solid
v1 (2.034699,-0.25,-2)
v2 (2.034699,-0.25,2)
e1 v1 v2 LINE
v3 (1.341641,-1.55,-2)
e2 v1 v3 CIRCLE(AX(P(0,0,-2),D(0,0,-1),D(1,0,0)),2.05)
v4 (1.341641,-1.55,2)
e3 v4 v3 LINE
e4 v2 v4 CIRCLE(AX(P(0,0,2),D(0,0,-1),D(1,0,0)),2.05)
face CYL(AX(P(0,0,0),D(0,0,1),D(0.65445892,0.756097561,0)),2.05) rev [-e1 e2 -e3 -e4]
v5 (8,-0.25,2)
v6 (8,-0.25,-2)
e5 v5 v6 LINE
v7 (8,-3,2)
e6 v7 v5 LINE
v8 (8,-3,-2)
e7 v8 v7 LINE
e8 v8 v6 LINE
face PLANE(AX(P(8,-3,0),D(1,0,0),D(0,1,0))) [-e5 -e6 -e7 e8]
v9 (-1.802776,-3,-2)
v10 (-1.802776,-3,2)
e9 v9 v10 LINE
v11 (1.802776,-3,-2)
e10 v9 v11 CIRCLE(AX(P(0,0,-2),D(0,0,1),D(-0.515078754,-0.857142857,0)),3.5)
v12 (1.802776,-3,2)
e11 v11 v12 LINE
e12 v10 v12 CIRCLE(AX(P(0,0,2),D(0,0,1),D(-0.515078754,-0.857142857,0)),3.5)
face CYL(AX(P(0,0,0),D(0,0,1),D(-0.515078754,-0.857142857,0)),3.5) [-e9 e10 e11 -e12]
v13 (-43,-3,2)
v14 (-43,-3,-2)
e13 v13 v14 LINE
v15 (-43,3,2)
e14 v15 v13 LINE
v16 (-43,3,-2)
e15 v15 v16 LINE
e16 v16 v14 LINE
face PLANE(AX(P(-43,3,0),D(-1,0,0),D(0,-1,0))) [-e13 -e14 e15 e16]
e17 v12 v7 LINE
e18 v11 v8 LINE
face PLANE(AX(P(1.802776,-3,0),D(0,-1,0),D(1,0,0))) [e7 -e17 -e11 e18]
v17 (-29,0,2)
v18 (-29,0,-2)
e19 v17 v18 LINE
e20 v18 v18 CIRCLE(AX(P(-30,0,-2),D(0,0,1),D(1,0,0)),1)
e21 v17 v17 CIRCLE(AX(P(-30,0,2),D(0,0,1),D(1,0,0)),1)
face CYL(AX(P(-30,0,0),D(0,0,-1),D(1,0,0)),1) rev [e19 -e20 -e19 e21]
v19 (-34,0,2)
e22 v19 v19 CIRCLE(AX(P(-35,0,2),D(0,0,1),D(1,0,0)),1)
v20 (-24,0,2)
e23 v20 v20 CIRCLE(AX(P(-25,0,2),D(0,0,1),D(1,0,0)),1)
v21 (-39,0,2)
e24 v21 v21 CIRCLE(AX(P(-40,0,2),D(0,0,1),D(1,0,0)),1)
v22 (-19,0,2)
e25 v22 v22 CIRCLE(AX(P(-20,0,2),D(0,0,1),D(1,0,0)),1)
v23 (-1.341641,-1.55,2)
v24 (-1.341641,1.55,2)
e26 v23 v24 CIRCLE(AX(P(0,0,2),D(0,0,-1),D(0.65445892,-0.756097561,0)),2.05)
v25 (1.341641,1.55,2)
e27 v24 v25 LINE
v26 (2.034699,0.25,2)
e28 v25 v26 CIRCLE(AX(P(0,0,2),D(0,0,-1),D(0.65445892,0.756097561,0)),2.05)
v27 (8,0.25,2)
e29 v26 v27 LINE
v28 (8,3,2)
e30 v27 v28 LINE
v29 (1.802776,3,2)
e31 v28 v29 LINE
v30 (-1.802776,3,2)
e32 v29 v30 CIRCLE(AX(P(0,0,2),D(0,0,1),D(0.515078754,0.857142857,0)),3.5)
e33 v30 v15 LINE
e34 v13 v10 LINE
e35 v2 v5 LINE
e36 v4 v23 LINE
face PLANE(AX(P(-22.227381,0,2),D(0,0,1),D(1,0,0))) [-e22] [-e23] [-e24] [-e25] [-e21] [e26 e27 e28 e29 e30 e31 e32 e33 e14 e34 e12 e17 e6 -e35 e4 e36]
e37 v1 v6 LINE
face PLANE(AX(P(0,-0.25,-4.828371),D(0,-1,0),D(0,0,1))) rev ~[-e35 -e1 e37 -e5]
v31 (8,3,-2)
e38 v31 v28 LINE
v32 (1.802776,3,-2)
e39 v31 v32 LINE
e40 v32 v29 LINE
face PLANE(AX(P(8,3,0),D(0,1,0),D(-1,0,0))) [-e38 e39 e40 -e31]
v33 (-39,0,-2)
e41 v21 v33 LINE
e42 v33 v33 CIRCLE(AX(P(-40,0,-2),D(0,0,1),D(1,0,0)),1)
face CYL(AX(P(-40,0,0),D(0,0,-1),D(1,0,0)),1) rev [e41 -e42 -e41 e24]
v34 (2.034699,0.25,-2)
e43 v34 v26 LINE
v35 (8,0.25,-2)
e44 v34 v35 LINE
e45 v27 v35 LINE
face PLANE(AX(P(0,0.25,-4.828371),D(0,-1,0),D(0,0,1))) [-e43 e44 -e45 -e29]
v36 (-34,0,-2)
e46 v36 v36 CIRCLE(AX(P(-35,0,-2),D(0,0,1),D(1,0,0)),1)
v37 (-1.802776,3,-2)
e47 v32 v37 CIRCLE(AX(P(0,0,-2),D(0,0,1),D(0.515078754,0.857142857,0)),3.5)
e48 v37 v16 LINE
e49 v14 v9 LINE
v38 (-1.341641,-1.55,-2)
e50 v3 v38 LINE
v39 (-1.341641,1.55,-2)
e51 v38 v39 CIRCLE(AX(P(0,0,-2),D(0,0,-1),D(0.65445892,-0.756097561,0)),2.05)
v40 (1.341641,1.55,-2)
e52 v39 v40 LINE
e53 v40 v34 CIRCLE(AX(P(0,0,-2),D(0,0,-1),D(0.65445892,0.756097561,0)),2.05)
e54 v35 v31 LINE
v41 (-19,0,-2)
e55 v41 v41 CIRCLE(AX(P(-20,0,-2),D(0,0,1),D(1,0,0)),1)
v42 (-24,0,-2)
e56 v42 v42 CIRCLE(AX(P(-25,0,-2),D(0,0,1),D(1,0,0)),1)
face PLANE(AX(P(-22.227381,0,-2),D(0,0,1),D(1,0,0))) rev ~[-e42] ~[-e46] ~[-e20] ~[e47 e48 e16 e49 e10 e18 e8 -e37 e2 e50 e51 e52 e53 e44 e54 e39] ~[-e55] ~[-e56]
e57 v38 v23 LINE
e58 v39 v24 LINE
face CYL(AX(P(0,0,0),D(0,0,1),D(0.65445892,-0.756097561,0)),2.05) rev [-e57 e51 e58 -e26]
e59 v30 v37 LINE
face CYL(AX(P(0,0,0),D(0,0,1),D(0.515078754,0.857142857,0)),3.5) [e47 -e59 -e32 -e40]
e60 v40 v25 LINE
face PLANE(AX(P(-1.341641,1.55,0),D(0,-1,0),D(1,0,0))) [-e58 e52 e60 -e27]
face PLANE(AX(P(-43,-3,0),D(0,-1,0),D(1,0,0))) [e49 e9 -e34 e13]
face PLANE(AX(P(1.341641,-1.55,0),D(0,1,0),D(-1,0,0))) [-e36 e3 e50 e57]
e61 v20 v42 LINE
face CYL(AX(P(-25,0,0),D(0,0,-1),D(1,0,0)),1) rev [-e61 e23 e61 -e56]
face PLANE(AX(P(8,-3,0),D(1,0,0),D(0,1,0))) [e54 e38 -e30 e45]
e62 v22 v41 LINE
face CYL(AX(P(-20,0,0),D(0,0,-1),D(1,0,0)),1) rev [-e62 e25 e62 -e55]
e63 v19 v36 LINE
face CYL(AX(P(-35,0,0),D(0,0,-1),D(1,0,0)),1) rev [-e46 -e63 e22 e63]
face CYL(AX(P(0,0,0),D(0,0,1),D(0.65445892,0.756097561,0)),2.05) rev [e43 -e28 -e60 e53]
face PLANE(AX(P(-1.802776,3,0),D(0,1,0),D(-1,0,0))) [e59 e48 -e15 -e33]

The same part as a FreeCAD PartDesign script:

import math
import FreeCAD as App
import Part
import Sketcher


def add_polygon(sketch, points):
    """Adds a closed chain of lines whose ends are joined by coincident constraints."""
    first, n = sketch.GeometryCount, len(points)
    for a, b in zip(points, points[1:] + points[:1]):
        sketch.addGeometry(Part.LineSegment(App.Vector(*a, 0), App.Vector(*b, 0)), False)
    for i in range(n):
        sketch.addConstraint(Sketcher.Constraint("Coincident", first + i, 2, first + (i + 1) % n, 1))

doc = App.newDocument("Part")
body = doc.addObject("PartDesign::Body", "Body")

sketch1 = body.newObject("Sketcher::SketchObject", "Sketch")
sketch1.AttachmentSupport = (doc.getObject("XY_Plane"), [""])
sketch1.MapMode = "FlatFace"
sketch1.addGeometry([
    Part.LineSegment(App.Vector(-43, -3, 0), App.Vector(-1.8, -3, 0)),
    Part.ArcOfCircle(Part.Circle(App.Vector(0, 0, 0), App.Vector(0, 0, 1), 3.5), math.radians(-121), math.radians(-59)),
    Part.LineSegment(App.Vector(1.8, -3, 0), App.Vector(8, -3, 0)),
    Part.LineSegment(App.Vector(8, -3, 0), App.Vector(8, 3, 0)),
    Part.LineSegment(App.Vector(8, 3, 0), App.Vector(1.8, 3, 0)),
    Part.ArcOfCircle(Part.Circle(App.Vector(0, 0, 0), App.Vector(0, 0, 1), 3.5), math.radians(59), math.radians(121)),
    Part.LineSegment(App.Vector(-1.8, 3, 0), App.Vector(-43, 3, 0)),
    Part.LineSegment(App.Vector(-43, 3, 0), App.Vector(-43, -3, 0)),
    Part.LineSegment(App.Vector(1.3, -1.6, 0), App.Vector(-1.3, -1.6, 0)),
    Part.ArcOfCircle(Part.Circle(App.Vector(0, 0, 0), App.Vector(0, 0, 1), 2), math.radians(131), math.radians(229)),
    Part.LineSegment(App.Vector(-1.3, 1.6, 0), App.Vector(1.3, 1.6, 0)),
    Part.ArcOfCircle(Part.Circle(App.Vector(0, 0, 0), App.Vector(0, 0, 1), 2), math.radians(0), math.radians(49)),
    Part.ArcOfCircle(Part.Circle(App.Vector(0, 0, 0), App.Vector(0, 0, 1), 2), math.radians(-49), math.radians(0)),
    Part.Circle(App.Vector(-40, 0, 0), App.Vector(0, 0, 1), 1),
    Part.Circle(App.Vector(-35, 0, 0), App.Vector(0, 0, 1), 1),
    Part.Circle(App.Vector(-30, 0, 0), App.Vector(0, 0, 1), 1),
    Part.Circle(App.Vector(-25, 0, 0), App.Vector(0, 0, 1), 1),
    Part.Circle(App.Vector(-20, 0, 0), App.Vector(0, 0, 1), 1),
], False)
sketch1.addConstraint([
    Sketcher.Constraint("Coincident", 0, 2, 1, 1),
    Sketcher.Constraint("Coincident", 1, 2, 2, 1),
    Sketcher.Constraint("Coincident", 2, 2, 3, 1),
    Sketcher.Constraint("Coincident", 3, 2, 4, 1),
    Sketcher.Constraint("Coincident", 4, 2, 5, 1),
    Sketcher.Constraint("Coincident", 5, 2, 6, 1),
    Sketcher.Constraint("Coincident", 6, 2, 7, 1),
    Sketcher.Constraint("Coincident", 7, 2, 0, 1),
    Sketcher.Constraint("Coincident", 8, 2, 9, 2),
    Sketcher.Constraint("Coincident", 9, 1, 10, 1),
    Sketcher.Constraint("Coincident", 10, 2, 11, 2),
    Sketcher.Constraint("Tangent", 11, 1, 12, 2),
    Sketcher.Constraint("Coincident", 12, 1, 8, 1),
    Sketcher.Constraint("Horizontal", 0),
    Sketcher.Constraint("Horizontal", 2),
    Sketcher.Constraint("Vertical", 3),
    Sketcher.Constraint("Horizontal", 4),
    Sketcher.Constraint("Horizontal", 6),
    Sketcher.Constraint("Vertical", 7),
    Sketcher.Constraint("Horizontal", 8),
    Sketcher.Constraint("Horizontal", 10),
    Sketcher.Constraint("Coincident", 1, 3, -1, 1),
    Sketcher.Constraint("Coincident", 5, 3, -1, 1),
    Sketcher.Constraint("Coincident", 9, 3, -1, 1),
    Sketcher.Constraint("Coincident", 11, 3, -1, 1),
    Sketcher.Constraint("Equal", 1, 5),
    Sketcher.Constraint("Equal", 9, 11),
    Sketcher.Constraint("Equal", 11, 12),
    Sketcher.Constraint("Equal", 13, 14),
    Sketcher.Constraint("Equal", 14, 15),
    Sketcher.Constraint("Equal", 15, 16),
    Sketcher.Constraint("Equal", 16, 17),
    Sketcher.Constraint("PointOnObject", 13, 3, -1),
    Sketcher.Constraint("PointOnObject", 14, 3, -1),
    Sketcher.Constraint("PointOnObject", 15, 3, -1),
    Sketcher.Constraint("PointOnObject", 16, 3, -1),
    Sketcher.Constraint("PointOnObject", 17, 3, -1),
    Sketcher.Constraint("PointOnObject", 11, 1, -1),
    Sketcher.Constraint("Horizontal", 0, 2, 1, 2),
    Sketcher.Constraint("Horizontal", 4, 2, 5, 2),
    Sketcher.Constraint("Vertical", 1, 2, 4, 2),
    Sketcher.Constraint("Vertical", 8, 2, 9, 1),
    Sketcher.Constraint("Diameter", 13, 2.0),
    Sketcher.Constraint("Radius", 1, 3.5),
    Sketcher.Constraint("DistanceY", 3, 1, 3, 2, 6.0),
    Sketcher.Constraint("Radius", 9, 2.05),
    Sketcher.Constraint("DistanceX", 13, 3, -1, 1, 40.0),
    Sketcher.Constraint("DistanceX", 14, 3, -1, 1, 35.0),
    Sketcher.Constraint("DistanceX", 15, 3, -1, 1, 30.0),
    Sketcher.Constraint("DistanceX", 16, 3, -1, 1, 25.0),
    Sketcher.Constraint("DistanceX", 17, 3, -1, 1, 20.0),
    Sketcher.Constraint("DistanceX", -1, 1, 2, 2, 8.0),
    Sketcher.Constraint("DistanceX", 6, 2, -1, 1, 43.0),
    Sketcher.Constraint("DistanceY", 8, 2, -1, 1, 1.55),
])
pad1 = body.newObject("PartDesign::Pad", "Pad")
pad1.Profile = sketch1
pad1.Length = 4
pad1.Midplane = True

sketch2 = body.newObject("Sketcher::SketchObject", "Sketch001")
sketch2.AttachmentSupport = (doc.getObject("YZ_Plane"), [""])
sketch2.MapMode = "FlatFace"
add_polygon(sketch2, [(-0.2, 4.8), (-0.2, -4.8), (0.2, -4.8), (0.2, 4.8)])
sketch2.addConstraint([
    Sketcher.Constraint("Vertical", 0),
    Sketcher.Constraint("Horizontal", 1),
    Sketcher.Constraint("Vertical", 2),
    Sketcher.Constraint("Horizontal", 3),
    Sketcher.Constraint("Symmetric", 0, 2, 2, 2, -1, 1),
    Sketcher.Constraint("DistanceX", 1, 1, 1, 2, 0.5),
    Sketcher.Constraint("DistanceY", 0, 2, 0, 1, 9.656742),
])
pocket1 = body.newObject("PartDesign::Pocket", "Pocket")
pocket1.Profile = sketch2
pocket1.Length = 25
pocket1.Reversed = True

doc.recompute()
